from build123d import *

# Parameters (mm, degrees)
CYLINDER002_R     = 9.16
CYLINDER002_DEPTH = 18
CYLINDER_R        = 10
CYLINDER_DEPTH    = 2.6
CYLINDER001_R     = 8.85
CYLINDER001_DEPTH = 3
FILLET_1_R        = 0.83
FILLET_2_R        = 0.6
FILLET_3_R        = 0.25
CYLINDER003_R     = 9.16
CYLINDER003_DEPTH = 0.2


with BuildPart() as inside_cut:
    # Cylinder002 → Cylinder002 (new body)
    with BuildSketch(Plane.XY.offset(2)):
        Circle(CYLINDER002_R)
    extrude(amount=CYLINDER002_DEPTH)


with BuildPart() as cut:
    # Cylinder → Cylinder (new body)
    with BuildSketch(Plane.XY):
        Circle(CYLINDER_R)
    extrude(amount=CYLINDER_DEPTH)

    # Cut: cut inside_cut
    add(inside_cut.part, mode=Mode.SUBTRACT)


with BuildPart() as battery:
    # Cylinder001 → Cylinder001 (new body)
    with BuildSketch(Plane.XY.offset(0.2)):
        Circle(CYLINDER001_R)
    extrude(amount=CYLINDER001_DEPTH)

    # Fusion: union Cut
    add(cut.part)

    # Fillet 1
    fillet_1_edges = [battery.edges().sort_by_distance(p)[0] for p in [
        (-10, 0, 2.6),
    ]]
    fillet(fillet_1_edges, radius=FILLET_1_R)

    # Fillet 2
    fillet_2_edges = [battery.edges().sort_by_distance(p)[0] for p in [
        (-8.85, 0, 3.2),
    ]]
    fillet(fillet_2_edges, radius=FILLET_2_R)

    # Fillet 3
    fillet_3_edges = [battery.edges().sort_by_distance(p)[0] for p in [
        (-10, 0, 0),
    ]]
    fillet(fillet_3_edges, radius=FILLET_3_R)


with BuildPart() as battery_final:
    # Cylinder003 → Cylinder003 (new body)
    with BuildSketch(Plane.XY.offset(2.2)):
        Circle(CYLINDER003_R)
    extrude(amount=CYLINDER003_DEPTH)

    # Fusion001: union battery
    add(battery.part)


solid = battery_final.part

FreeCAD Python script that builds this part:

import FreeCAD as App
import Part
import Sketcher


def edges_at(feature, points):
    """Names of the edges that pass closest to the given points."""
    edges = feature.Shape.Edges
    near = lambda p: min(range(len(edges)), key=lambda i: edges[i].distToShape(Part.Vertex(*p))[0])
    return sorted({f"Edge{near(p) + 1}" for p in points})

doc = App.newDocument("Part")
body = doc.addObject("PartDesign::Body", "Body")

# Sketch on XY plane
sketch1 = body.newObject("Sketcher::SketchObject", "Sketch")
sketch1.AttachmentSupport = (doc.getObject("XY_Plane"), [""])
sketch1.MapMode = "FlatFace"
sketch1.AttachmentOffset = App.Placement(App.Vector(0, 0, 2), App.Rotation())
sketch1.addGeometry(Part.Circle(App.Vector(0, 0, 0), App.Vector(0, 0, 1), 9), False)
sketch1.addConstraint(Sketcher.Constraint("Coincident", 0, 3, -1, 1))
sketch1.addConstraint(Sketcher.Constraint("Diameter", 0, 18.32))
pad1 = body.newObject("PartDesign::Pad", "Pad")
pad1.Profile = sketch1
pad1.Length = 18
body2 = doc.addObject("PartDesign::Body", "Body001")

# Sketch on XY plane
sketch2 = body2.newObject("Sketcher::SketchObject", "Sketch001")
sketch2.AttachmentSupport = (doc.getObject("XY_Plane001"), [""])
sketch2.MapMode = "FlatFace"
sketch2.addGeometry(Part.Circle(App.Vector(0, 0, 0), App.Vector(0, 0, 1), 10), False)
sketch2.addConstraint(Sketcher.Constraint("Coincident", 0, 3, -1, 1))
sketch2.addConstraint(Sketcher.Constraint("Diameter", 0, 20.0))
pad2 = body2.newObject("PartDesign::Pad", "Pad001")
pad2.Profile = sketch2
pad2.Length = 2.6
doc.recompute()

boolean = body2.newObject("PartDesign::Boolean", "Boolean")
boolean.Type = "Cut"
boolean.addObjects([body])
body3 = doc.addObject("PartDesign::Body", "Body002")

# Sketch on XY plane
sketch3 = body3.newObject("Sketcher::SketchObject", "Sketch002")
sketch3.AttachmentSupport = (doc.getObject("XY_Plane002"), [""])
sketch3.MapMode = "FlatFace"
sketch3.AttachmentOffset = App.Placement(App.Vector(0, 0, 0.2), App.Rotation())
sketch3.addGeometry(Part.Circle(App.Vector(0, 0, 0), App.Vector(0, 0, 1), 9), False)
sketch3.addConstraint(Sketcher.Constraint("Coincident", 0, 3, -1, 1))
sketch3.addConstraint(Sketcher.Constraint("Diameter", 0, 17.7))
pad3 = body3.newObject("PartDesign::Pad", "Pad002")
pad3.Profile = sketch3
pad3.Length = 3
doc.recompute()

boolean2 = body3.newObject("PartDesign::Boolean", "Boolean001")
boolean2.Type = "Fuse"
boolean2.addObjects([body2])
doc.recompute()

fillet = body3.newObject("PartDesign::Fillet", "Fillet")
fillet.Base = (boolean2, edges_at(boolean2, [(-10, 0, 2.6)]))
fillet.Radius = 0.83
doc.recompute()

fillet2 = body3.newObject("PartDesign::Fillet", "Fillet001")
fillet2.Base = (fillet, edges_at(fillet, [(-8.85, 0, 3.2)]))
fillet2.Radius = 0.6
doc.recompute()

fillet3 = body3.newObject("PartDesign::Fillet", "Fillet002")
fillet3.Base = (fillet2, edges_at(fillet2, [(-10, 0, 0)]))
fillet3.Radius = 0.25
body4 = doc.addObject("PartDesign::Body", "Body003")

# Sketch on XY plane
sketch4 = body4.newObject("Sketcher::SketchObject", "Sketch003")
sketch4.AttachmentSupport = (doc.getObject("XY_Plane003"), [""])
sketch4.MapMode = "FlatFace"
sketch4.AttachmentOffset = App.Placement(App.Vector(0, 0, 2.2), App.Rotation())
sketch4.addGeometry(Part.Circle(App.Vector(0, 0, 0), App.Vector(0, 0, 1), 9), False)
sketch4.addConstraint(Sketcher.Constraint("Coincident", 0, 3, -1, 1))
sketch4.addConstraint(Sketcher.Constraint("Diameter", 0, 18.32))
pad4 = body4.newObject("PartDesign::Pad", "Pad003")
pad4.Profile = sketch4
pad4.Length = 0.2
doc.recompute()

boolean3 = body4.newObject("PartDesign::Boolean", "Boolean002")
boolean3.Type = "Fuse"
boolean3.addObjects([body3])

doc.recompute()
